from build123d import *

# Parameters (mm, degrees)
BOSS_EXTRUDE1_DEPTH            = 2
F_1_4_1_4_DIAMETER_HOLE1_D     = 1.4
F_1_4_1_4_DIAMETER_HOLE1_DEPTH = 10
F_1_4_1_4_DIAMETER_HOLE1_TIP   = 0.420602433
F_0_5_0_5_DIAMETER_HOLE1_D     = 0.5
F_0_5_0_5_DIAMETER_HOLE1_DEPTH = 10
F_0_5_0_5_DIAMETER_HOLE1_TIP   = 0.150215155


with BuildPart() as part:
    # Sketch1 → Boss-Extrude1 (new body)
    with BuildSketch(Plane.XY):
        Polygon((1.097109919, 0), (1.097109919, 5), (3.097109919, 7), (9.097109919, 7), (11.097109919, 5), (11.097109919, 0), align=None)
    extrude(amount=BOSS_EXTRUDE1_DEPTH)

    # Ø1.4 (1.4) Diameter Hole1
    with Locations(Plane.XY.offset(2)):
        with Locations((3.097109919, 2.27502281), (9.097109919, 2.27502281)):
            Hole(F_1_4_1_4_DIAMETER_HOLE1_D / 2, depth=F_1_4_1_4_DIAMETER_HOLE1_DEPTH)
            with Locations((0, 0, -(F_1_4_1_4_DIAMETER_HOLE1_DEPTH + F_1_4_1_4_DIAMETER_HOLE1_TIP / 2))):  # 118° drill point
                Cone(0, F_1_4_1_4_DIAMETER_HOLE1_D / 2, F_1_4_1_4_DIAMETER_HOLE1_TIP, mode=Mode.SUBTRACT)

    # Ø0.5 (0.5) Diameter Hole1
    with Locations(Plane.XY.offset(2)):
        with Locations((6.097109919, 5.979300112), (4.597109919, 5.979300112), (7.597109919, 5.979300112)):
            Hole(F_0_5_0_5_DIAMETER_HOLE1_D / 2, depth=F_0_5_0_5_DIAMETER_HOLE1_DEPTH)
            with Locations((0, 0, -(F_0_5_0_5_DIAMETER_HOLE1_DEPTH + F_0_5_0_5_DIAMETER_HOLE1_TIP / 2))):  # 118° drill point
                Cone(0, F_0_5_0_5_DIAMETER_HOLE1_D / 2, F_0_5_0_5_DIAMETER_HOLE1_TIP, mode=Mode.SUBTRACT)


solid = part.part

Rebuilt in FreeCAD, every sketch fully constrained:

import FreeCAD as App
import Part
import Sketcher

V = App.Vector


def add_polygon(sketch, points):
    """Adds a closed chain of lines whose ends are joined by coincident constraints."""
    first, n = sketch.GeometryCount, len(points)
    for a, b in zip(points, points[1:] + points[:1]):
        sketch.addGeometry(Part.LineSegment(App.Vector(*a, 0), App.Vector(*b, 0)), False)
    for i in range(n):
        sketch.addConstraint(Sketcher.Constraint("Coincident", first + i, 2, first + (i + 1) % n, 1))

doc = App.newDocument("Part")
body = doc.addObject("PartDesign::Body", "Body")

# Sketch on XY plane
sketch1 = body.newObject("Sketcher::SketchObject", "Sketch")
sketch1.AttachmentSupport = (doc.getObject("XY_Plane"), [""])
sketch1.MapMode = "FlatFace"
add_polygon(sketch1, [(1.1, 5), (1.1, 0), (11.1, 0), (11.1, 5), (9.1, 7), (3.1, 7)])  # lines 0-5
sketch1.addConstraint([
    Sketcher.Constraint("Vertical", 0),
    Sketcher.Constraint("Horizontal", 1),
    Sketcher.Constraint("Vertical", 2),
    Sketcher.Constraint("Horizontal", 4),
    Sketcher.Constraint("PointOnObject", 0, 2, -1),
    Sketcher.Constraint("Perpendicular", 3, 5),
    Sketcher.Constraint("Horizontal", 2, 2, 5, 2),
    Sketcher.Constraint("Equal", 3, 5),
    Sketcher.Constraint("DistanceX", 1, 1, 1, 2, 10.0),
    Sketcher.Constraint("DistanceX", 4, 2, 4, 1, 6.0),
    Sketcher.Constraint("DistanceY", 0, 2, 0, 1, 5.0),
    Sketcher.Constraint("DistanceX", -1, 1, 0, 2, 1.09711),
])
pad1 = body.newObject("PartDesign::Pad", "Pad")
pad1.Profile = sketch1
pad1.Length = 2

# Sketch on XY plane
sketch2 = body.newObject("Sketcher::SketchObject", "Sketch001")
sketch2.AttachmentSupport = (doc.getObject("XY_Plane"), [""])
sketch2.MapMode = "FlatFace"
sketch2.AttachmentOffset = App.Placement(V(0, 0, 2), App.Rotation())
sketch2.addGeometry([
    Part.Circle(V(3.1, 2.3, 0), V(0, 0, 1), 0.7),
    Part.Circle(V(9.1, 2.3, 0), V(0, 0, 1), 0.7),
], False)
sketch2.addConstraint([
    Sketcher.Constraint("Equal", 0, 1),
    Sketcher.Constraint("Horizontal", 0, 3, 1, 3),
    Sketcher.Constraint("Diameter", 0, 1.4),
    Sketcher.Constraint("DistanceX", 0, 3, 1, 3, 6.0),
    Sketcher.Constraint("DistanceX", -1, 1, 0, 3, 3.09711),
    Sketcher.Constraint("DistanceY", -1, 1, 0, 3, 2.275023),
])
doc.recompute()
hole = body.newObject("PartDesign::Hole", "Hole")
hole.Profile = sketch2
hole.ThreadType = "None"
hole.Diameter = 1.4
hole.DepthType = "Dimension"
hole.Depth = 10
hole.DrillPoint = "Angled"
hole.DrillPointAngle = 118

# Sketch on XY plane
sketch3 = body.newObject("Sketcher::SketchObject", "Sketch002")
sketch3.AttachmentSupport = (doc.getObject("XY_Plane"), [""])
sketch3.MapMode = "FlatFace"
sketch3.AttachmentOffset = App.Placement(V(0, 0, 2), App.Rotation())
sketch3.addGeometry([
    Part.Circle(V(6.1, 5.98, 0), V(0, 0, 1), 0.25),
    Part.Circle(V(4.6, 5.98, 0), V(0, 0, 1), 0.25),
    Part.Circle(V(7.6, 5.98, 0), V(0, 0, 1), 0.25),
], False)
sketch3.addConstraint([
    Sketcher.Constraint("Equal", 0, 1),
    Sketcher.Constraint("Equal", 1, 2),
    Sketcher.Constraint("Horizontal", 0, 3, 1, 3),
    Sketcher.Constraint("Horizontal", 1, 3, 2, 3),
    Sketcher.Constraint("Diameter", 0, 0.5),
    Sketcher.Constraint("DistanceX", 1, 3, 2, 3, 3.0),
    Sketcher.Constraint("DistanceX", 1, 3, 0, 3, 1.5),
    Sketcher.Constraint("DistanceY", -1, 1, 0, 3, 5.9793),
    Sketcher.Constraint("DistanceX", -1, 1, 0, 3, 6.09711),
])
doc.recompute()
hole2 = body.newObject("PartDesign::Hole", "Hole001")
hole2.Profile = sketch3
hole2.ThreadType = "None"
hole2.Diameter = 0.5
hole2.DepthType = "Dimension"
hole2.Depth = 10
hole2.DrillPoint = "Angled"
hole2.DrillPointAngle = 118

doc.recompute()
